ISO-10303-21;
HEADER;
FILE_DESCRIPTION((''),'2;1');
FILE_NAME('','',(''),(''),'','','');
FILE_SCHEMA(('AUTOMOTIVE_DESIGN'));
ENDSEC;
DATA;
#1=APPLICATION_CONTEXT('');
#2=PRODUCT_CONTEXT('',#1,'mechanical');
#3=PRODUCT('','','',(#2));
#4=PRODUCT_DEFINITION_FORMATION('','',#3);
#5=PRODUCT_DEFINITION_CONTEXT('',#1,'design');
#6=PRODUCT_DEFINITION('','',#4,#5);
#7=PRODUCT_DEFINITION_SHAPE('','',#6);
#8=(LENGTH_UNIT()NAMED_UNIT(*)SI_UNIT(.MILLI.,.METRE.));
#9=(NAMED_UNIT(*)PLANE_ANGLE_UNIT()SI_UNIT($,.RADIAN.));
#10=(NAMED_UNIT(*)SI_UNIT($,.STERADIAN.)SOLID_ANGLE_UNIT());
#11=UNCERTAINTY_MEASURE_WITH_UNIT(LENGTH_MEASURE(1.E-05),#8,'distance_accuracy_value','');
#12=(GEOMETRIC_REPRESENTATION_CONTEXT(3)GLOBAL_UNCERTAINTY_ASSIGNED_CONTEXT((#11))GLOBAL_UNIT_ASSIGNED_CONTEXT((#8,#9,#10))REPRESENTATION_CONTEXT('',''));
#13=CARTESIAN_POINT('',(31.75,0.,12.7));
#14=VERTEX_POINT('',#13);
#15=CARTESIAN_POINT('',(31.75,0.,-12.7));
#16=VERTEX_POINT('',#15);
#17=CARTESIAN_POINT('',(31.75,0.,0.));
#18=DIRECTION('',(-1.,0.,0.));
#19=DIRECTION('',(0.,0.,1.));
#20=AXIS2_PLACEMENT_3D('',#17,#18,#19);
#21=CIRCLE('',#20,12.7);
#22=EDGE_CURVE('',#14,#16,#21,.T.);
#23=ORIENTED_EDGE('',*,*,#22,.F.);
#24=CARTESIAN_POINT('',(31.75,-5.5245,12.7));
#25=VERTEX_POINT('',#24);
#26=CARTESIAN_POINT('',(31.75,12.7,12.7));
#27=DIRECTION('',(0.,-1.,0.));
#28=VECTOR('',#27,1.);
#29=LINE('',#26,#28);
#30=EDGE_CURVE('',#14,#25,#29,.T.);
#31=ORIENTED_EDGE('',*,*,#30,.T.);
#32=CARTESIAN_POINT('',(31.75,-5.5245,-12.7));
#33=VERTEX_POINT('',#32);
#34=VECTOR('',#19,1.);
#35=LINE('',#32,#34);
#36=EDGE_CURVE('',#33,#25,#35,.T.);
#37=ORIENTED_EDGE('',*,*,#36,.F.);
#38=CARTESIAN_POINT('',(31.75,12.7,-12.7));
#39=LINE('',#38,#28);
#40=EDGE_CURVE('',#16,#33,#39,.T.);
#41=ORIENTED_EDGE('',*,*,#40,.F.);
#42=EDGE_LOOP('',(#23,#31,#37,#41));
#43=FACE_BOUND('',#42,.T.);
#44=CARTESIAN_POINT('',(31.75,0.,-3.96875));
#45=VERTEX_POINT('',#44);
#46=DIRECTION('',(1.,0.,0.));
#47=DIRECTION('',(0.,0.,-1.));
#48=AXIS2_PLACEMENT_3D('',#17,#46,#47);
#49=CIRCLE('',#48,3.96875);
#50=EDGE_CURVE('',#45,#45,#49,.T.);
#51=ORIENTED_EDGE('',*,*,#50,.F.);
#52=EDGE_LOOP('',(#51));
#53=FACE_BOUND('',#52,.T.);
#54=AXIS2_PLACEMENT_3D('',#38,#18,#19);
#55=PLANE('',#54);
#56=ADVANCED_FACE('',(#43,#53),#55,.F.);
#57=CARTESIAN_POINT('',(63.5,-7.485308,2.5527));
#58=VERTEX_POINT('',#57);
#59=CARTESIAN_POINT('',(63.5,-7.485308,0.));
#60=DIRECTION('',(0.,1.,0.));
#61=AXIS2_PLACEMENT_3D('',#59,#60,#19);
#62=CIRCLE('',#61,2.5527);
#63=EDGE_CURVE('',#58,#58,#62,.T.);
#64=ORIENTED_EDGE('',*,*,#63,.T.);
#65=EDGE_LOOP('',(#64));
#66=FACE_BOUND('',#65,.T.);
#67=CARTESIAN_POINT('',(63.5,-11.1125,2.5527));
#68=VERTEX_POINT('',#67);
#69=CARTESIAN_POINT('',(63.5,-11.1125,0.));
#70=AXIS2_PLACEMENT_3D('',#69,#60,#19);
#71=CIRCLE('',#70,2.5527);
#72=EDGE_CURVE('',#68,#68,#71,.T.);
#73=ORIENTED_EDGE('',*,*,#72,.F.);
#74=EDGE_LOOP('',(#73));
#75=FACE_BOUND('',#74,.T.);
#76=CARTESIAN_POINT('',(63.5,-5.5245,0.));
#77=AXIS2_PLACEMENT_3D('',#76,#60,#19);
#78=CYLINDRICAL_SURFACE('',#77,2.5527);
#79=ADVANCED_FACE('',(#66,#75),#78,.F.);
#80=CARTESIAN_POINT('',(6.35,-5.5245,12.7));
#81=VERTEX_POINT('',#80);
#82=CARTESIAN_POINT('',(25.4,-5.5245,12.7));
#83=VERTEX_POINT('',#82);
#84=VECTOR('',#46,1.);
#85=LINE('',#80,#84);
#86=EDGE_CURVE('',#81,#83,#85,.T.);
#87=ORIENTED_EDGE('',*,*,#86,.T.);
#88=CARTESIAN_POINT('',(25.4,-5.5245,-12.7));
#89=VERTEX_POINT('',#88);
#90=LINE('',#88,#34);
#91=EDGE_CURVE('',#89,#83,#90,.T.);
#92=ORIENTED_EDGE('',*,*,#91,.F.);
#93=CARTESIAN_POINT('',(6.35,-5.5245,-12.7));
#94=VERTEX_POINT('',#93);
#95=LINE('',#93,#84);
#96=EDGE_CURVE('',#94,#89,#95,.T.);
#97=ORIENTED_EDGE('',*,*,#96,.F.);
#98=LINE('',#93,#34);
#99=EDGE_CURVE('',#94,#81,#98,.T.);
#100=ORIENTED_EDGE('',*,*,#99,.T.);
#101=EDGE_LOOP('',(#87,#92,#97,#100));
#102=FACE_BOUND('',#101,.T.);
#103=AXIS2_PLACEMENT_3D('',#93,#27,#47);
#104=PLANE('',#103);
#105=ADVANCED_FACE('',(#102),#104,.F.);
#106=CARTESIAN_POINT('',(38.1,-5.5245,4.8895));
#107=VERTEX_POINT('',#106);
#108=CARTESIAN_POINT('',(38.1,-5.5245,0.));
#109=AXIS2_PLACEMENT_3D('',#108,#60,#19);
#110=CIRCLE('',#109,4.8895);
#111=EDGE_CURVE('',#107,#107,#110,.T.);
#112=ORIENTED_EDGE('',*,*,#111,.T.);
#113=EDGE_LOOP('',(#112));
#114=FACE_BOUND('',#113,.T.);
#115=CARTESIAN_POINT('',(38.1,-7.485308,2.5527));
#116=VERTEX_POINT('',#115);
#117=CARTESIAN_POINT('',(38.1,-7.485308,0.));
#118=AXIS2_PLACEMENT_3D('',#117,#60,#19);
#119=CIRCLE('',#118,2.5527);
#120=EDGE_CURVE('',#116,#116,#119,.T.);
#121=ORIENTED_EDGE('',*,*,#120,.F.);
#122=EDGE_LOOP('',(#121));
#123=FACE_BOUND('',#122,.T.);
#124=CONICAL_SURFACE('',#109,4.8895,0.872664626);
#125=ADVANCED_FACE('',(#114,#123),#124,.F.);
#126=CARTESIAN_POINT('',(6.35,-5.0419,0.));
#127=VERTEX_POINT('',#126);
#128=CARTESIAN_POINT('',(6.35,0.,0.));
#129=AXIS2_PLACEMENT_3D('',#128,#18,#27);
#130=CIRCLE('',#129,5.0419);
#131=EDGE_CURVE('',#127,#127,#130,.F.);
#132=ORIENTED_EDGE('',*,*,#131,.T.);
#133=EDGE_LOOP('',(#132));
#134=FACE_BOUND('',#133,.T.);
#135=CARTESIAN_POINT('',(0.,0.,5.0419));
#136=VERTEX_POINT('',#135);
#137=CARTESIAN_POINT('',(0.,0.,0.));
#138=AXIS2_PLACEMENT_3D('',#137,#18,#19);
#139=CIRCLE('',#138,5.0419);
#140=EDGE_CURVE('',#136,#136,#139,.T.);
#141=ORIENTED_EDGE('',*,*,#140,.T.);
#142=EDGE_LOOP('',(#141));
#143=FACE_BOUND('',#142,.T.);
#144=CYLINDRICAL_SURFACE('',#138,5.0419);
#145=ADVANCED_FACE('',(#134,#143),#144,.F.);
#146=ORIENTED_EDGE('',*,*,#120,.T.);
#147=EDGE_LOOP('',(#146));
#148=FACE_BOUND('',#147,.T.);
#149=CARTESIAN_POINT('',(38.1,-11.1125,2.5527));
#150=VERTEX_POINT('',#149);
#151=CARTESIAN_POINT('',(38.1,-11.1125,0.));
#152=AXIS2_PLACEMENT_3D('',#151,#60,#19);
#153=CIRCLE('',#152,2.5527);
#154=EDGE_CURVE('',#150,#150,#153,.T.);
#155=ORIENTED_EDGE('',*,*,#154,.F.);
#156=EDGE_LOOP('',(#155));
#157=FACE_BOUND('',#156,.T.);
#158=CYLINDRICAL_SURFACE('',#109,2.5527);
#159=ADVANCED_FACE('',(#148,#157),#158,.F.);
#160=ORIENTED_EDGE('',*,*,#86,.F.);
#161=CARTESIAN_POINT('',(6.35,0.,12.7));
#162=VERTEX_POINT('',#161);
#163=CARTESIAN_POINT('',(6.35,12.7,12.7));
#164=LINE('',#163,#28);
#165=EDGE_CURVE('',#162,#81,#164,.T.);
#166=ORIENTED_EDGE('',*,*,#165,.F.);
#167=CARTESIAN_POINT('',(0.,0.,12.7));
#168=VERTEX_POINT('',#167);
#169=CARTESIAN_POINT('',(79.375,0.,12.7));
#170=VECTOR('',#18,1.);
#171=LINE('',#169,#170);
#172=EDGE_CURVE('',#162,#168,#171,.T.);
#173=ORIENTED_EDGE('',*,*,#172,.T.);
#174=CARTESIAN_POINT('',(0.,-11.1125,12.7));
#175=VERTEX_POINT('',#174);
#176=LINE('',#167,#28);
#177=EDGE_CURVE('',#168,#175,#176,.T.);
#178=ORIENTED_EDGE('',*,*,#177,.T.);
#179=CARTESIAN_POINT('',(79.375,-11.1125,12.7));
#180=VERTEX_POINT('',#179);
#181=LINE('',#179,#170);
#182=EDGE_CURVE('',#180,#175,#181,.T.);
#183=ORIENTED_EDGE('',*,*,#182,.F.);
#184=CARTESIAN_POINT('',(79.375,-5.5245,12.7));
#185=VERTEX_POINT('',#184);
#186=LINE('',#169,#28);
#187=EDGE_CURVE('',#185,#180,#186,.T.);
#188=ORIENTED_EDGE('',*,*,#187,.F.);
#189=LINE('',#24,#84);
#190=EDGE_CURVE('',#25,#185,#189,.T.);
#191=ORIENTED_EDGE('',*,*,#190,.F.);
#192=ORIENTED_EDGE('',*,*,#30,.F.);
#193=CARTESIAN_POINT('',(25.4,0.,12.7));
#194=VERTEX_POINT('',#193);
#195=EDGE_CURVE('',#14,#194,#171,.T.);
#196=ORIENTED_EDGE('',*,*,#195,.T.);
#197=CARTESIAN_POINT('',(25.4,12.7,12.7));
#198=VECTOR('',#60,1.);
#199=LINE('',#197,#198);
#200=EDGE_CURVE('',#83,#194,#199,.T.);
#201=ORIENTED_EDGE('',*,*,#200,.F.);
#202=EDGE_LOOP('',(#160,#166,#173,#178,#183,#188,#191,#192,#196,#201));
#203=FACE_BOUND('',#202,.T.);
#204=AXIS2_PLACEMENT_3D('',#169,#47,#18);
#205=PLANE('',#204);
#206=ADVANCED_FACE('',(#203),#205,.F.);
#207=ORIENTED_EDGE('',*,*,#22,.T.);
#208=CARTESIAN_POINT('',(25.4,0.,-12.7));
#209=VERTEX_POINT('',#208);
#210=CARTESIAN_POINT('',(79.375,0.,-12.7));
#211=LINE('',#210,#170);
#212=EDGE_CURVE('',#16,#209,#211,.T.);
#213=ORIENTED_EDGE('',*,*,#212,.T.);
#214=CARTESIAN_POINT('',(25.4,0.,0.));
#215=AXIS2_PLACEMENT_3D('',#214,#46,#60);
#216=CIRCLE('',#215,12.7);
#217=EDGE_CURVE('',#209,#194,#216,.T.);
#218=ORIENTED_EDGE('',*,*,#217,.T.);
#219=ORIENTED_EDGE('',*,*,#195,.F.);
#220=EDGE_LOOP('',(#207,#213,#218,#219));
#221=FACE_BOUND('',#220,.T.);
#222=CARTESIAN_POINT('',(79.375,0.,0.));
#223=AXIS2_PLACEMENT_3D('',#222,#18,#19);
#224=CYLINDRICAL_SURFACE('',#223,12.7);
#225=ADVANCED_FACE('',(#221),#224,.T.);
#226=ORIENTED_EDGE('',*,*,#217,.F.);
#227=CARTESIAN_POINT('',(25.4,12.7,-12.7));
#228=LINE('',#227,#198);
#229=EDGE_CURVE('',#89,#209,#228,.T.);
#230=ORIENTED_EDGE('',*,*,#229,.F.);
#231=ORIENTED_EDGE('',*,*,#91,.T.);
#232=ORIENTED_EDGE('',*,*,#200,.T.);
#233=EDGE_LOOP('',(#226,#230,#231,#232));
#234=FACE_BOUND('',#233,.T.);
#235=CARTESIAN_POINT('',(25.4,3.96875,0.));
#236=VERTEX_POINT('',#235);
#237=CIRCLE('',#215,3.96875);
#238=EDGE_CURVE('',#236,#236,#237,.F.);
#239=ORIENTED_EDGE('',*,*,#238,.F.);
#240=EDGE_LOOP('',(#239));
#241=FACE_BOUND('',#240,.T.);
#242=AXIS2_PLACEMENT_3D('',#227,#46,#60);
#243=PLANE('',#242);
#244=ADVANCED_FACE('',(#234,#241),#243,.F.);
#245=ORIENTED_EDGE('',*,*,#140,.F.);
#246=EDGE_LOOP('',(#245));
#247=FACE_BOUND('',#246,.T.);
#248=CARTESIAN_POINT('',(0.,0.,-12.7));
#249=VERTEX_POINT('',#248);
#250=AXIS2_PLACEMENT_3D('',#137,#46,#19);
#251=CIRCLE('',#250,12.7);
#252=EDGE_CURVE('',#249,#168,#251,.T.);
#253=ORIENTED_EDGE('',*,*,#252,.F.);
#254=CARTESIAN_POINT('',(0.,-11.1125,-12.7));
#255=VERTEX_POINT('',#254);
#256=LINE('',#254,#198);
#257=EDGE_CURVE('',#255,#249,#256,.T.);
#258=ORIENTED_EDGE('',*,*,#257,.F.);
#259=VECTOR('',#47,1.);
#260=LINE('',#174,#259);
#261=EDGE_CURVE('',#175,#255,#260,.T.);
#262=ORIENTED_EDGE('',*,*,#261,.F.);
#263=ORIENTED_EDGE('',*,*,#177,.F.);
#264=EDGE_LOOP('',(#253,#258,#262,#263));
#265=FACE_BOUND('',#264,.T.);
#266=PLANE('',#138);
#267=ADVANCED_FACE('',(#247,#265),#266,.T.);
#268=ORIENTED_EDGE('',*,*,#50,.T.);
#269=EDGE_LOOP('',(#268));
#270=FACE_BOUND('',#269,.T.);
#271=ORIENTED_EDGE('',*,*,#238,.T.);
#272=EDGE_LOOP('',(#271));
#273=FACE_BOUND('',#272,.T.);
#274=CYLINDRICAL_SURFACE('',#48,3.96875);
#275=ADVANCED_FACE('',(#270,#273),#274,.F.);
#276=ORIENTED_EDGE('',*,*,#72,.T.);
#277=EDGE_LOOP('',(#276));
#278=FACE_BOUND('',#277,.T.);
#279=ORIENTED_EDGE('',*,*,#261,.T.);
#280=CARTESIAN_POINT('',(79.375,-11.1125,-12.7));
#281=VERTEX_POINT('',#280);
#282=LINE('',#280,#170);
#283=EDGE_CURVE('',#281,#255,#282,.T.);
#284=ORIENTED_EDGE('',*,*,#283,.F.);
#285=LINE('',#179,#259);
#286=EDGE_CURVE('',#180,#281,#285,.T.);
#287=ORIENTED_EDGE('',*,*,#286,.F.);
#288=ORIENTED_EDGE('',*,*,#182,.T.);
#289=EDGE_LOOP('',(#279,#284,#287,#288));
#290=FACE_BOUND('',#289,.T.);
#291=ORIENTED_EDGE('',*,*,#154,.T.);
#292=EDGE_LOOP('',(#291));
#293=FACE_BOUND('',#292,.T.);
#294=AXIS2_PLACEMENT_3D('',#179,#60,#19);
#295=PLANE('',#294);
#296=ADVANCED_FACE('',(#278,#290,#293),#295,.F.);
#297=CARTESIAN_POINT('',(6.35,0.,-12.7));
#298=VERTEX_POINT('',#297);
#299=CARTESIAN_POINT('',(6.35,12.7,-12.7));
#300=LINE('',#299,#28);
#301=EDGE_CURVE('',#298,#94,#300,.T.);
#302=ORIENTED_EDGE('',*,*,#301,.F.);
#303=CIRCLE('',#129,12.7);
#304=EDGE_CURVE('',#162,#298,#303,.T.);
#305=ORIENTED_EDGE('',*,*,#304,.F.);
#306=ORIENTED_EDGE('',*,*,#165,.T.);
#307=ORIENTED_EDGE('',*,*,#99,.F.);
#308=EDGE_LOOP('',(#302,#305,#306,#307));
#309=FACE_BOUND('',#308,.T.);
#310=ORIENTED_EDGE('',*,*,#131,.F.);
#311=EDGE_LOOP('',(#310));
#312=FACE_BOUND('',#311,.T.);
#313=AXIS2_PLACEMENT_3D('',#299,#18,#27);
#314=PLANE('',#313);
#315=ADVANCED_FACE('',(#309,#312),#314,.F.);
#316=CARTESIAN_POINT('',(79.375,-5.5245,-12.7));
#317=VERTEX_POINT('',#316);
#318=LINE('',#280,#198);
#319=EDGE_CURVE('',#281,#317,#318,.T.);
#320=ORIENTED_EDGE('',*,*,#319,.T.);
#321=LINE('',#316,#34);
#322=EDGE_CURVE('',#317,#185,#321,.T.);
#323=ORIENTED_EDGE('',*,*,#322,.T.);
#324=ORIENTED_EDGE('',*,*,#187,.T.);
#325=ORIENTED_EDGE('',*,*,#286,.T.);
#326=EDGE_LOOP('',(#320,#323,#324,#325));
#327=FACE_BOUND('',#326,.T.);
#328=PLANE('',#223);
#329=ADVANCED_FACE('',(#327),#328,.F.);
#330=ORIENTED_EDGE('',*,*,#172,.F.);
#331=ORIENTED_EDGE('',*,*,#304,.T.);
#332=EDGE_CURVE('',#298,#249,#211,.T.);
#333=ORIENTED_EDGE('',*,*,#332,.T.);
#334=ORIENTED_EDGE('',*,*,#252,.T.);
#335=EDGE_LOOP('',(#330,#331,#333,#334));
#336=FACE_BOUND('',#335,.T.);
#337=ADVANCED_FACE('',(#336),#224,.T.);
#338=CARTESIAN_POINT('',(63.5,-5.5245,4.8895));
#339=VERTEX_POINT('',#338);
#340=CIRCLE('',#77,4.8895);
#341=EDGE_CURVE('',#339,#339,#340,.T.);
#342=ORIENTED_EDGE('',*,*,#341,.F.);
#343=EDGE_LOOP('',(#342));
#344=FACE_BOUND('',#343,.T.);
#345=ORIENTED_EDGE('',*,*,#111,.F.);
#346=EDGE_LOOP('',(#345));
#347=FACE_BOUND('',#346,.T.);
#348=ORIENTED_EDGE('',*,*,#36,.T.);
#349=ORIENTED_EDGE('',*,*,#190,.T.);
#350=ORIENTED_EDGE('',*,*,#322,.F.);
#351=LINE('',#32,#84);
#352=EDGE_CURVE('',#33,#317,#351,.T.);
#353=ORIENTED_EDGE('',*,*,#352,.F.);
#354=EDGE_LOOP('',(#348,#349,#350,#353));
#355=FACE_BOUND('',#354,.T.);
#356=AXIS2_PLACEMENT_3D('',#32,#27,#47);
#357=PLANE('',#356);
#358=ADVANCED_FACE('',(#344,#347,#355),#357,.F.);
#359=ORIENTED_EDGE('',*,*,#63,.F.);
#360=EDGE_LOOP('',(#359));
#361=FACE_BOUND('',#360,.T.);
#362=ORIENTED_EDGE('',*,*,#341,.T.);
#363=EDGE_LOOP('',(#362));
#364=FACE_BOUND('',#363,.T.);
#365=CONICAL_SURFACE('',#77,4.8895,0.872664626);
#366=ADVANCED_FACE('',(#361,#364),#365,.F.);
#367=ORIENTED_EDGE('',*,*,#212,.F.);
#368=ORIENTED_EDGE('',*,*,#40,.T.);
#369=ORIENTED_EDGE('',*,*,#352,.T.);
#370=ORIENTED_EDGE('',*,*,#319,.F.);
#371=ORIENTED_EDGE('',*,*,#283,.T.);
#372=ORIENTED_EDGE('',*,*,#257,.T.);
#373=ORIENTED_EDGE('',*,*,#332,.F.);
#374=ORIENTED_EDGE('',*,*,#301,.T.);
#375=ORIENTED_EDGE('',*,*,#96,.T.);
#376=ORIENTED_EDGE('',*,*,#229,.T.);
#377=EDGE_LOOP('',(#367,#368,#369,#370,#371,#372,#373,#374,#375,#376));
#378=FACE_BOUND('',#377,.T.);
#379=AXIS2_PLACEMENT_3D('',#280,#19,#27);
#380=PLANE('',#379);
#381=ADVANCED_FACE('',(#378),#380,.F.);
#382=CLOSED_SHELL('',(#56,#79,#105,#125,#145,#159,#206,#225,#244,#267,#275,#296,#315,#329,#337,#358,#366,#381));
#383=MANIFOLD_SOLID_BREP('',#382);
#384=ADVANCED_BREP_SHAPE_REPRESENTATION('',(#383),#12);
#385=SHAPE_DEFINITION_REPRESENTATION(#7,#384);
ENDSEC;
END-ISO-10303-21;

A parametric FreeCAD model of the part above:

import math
import FreeCAD as App
import Part
import Sketcher

V = App.Vector
Q = App.Units.Quantity

doc = App.newDocument("Part")
body = doc.addObject("PartDesign::Body", "Body")

sketch1 = body.newObject("Sketcher::SketchObject", "Sketch")
sketch1.AttachmentSupport = (doc.getObject("YZ_Plane"), [""])
sketch1.MapMode = "FlatFace"
sketch1.addGeometry(Part.LineSegment(V(0, 12.7, 0), V(-11.1, 12.7, 0)), False)
sketch1.addGeometry(Part.LineSegment(V(-11.1, 12.7, 0), V(-11.1, -12.7, 0)), False)
sketch1.addGeometry(Part.LineSegment(V(-11.1, -12.7, 0), V(0, -12.7, 0)), False)
sketch1.addGeometry(Part.ArcOfCircle(Part.Circle(V(0, 0, 0), V(0, 0, 1), 12.7), math.radians(-90), math.radians(90)), False)
sketch1.addGeometry(Part.Circle(V(0, 0, 0), V(0, 0, 1), 1.6), False)
sketch1.addConstraint(Sketcher.Constraint("Coincident", 0, 2, 1, 1))
sketch1.addConstraint(Sketcher.Constraint("Coincident", 1, 2, 2, 1))
sketch1.addConstraint(Sketcher.Constraint("Tangent", 2, 2, 3, 1))
sketch1.addConstraint(Sketcher.Constraint("Tangent", 3, 2, 0, 1))
sketch1.addConstraint(Sketcher.Constraint("Horizontal", 0))
sketch1.addConstraint(Sketcher.Constraint("Vertical", 1))
sketch1.addConstraint(Sketcher.Constraint("Horizontal", 2))
sketch1.addConstraint(Sketcher.Constraint("Coincident", 3, 3, -1, 1))
sketch1.addConstraint(Sketcher.Constraint("Coincident", 4, 3, -1, 1))
sketch1.addConstraint(Sketcher.Constraint("Radius", 3, Q("0.5 in")))
sketch1.addConstraint(Sketcher.Constraint("Diameter", 4, Q("0.125 in")))
sketch1.addConstraint(Sketcher.Constraint("DistanceX", 0, 2, 0, 1, Q("0.4375 in")))
pad1 = body.newObject("PartDesign::Pad", "Pad")
pad1.Profile = sketch1
pad1.Length = Q("3.125 in")

sketch2 = body.newObject("Sketcher::SketchObject", "Sketch001")
sketch2.AttachmentSupport = (doc.getObject("XY_Plane"), [""])
sketch2.MapMode = "FlatFace"
sketch2.AttachmentOffset = App.Placement(V(0, 0, 0.5 * 25.4), App.Rotation())
sketch2.addGeometry(Part.LineSegment(V(6, 13, 0), V(6, -6, 0)), False)
sketch2.addGeometry(Part.LineSegment(V(6, -6, 0), V(25, -6, 0)), False)
sketch2.addGeometry(Part.LineSegment(V(25, -6, 0), V(25, 13, 0)), False)
sketch2.addGeometry(Part.LineSegment(V(25, 13, 0), V(6, 13, 0)), False)
sketch2.addGeometry(Part.LineSegment(V(32, 13, 0), V(32, -6, 0)), False)
sketch2.addGeometry(Part.LineSegment(V(32, -6, 0), V(79, -6, 0)), False)
sketch2.addGeometry(Part.LineSegment(V(79, -6, 0), V(79, 13, 0)), False)
sketch2.addGeometry(Part.LineSegment(V(79, 13, 0), V(32, 13, 0)), False)
sketch2.addConstraint(Sketcher.Constraint("Coincident", 0, 2, 1, 1))
sketch2.addConstraint(Sketcher.Constraint("Coincident", 1, 2, 2, 1))
sketch2.addConstraint(Sketcher.Constraint("Coincident", 2, 2, 3, 1))
sketch2.addConstraint(Sketcher.Constraint("Coincident", 3, 2, 0, 1))
sketch2.addConstraint(Sketcher.Constraint("Coincident", 4, 2, 5, 1))
sketch2.addConstraint(Sketcher.Constraint("Coincident", 5, 2, 6, 1))
sketch2.addConstraint(Sketcher.Constraint("Coincident", 6, 2, 7, 1))
sketch2.addConstraint(Sketcher.Constraint("Coincident", 7, 2, 4, 1))
sketch2.addConstraint(Sketcher.Constraint("Vertical", 0))
sketch2.addConstraint(Sketcher.Constraint("Horizontal", 1))
sketch2.addConstraint(Sketcher.Constraint("Vertical", 2))
sketch2.addConstraint(Sketcher.Constraint("Horizontal", 3))
sketch2.addConstraint(Sketcher.Constraint("Vertical", 4))
sketch2.addConstraint(Sketcher.Constraint("Horizontal", 5))
sketch2.addConstraint(Sketcher.Constraint("Vertical", 6))
sketch2.addConstraint(Sketcher.Constraint("Horizontal", 7))
sketch2.addConstraint(Sketcher.Constraint("Horizontal", 1, 2, 4, 2))
sketch2.addConstraint(Sketcher.Constraint("Horizontal", 3, 2, 6, 2))
sketch2.addConstraint(Sketcher.Constraint("DistanceX", -1, 1, 1, 2, Q("1 in")))
sketch2.addConstraint(Sketcher.Constraint("DistanceX", 0, 2, 4, 2, Q("1 in")))
sketch2.addConstraint(Sketcher.Constraint("DistanceX", 1, 1, 1, 2, Q("0.75 in")))
sketch2.addConstraint(Sketcher.Constraint("DistanceY", -1, 1, 2, 2, Q("0.5 in")))
sketch2.addConstraint(Sketcher.Constraint("DistanceX", 5, 1, 5, 2, Q("1.875 in")))
sketch2.addConstraint(Sketcher.Constraint("DistanceY", 0, 2, 0, 1, Q("0.7175 in")))
pocket1 = body.newObject("PartDesign::Pocket", "Pocket")
pocket1.Profile = sketch2
pocket1.Type = "ThroughAll"

sketch3 = body.newObject("Sketcher::SketchObject", "Sketch002")
sketch3.AttachmentSupport = (doc.getObject("XZ_Plane"), [""])
sketch3.MapMode = "FlatFace"
sketch3.AttachmentOffset = App.Placement(V(0, 0, 0.2175 * 25.4), App.Rotation())
sketch3.addGeometry(Part.Circle(V(38.1, 0, 0), V(0, 0, 1), 2.6), False)
sketch3.addGeometry(Part.Circle(V(63.5, 0, 0), V(0, 0, 1), 2.6), False)
sketch3.addConstraint(Sketcher.Constraint("Equal", 0, 1))
sketch3.addConstraint(Sketcher.Constraint("PointOnObject", 0, 3, -1))
sketch3.addConstraint(Sketcher.Constraint("PointOnObject", 1, 3, -1))
sketch3.addConstraint(Sketcher.Constraint("Diameter", 0, Q("0.201 in")))
sketch3.addConstraint(Sketcher.Constraint("DistanceX", 0, 3, 1, 3, Q("1 in")))
sketch3.addConstraint(Sketcher.Constraint("DistanceX", -1, 1, 0, 3, Q("1.5 in")))
doc.recompute()
hole = body.newObject("PartDesign::Hole", "Hole")
hole.Profile = sketch3
hole.ThreadType = "None"
hole.Diameter = Q("0.201 in")
hole.DepthType = "ThroughAll"
hole.HoleCutType = "Countersink"
hole.HoleCutDiameter = Q("0.385 in")
hole.HoleCutCountersinkAngle = 100
hole.Reversed = True

sketch4 = body.newObject("Sketcher::SketchObject", "Sketch003")
sketch4.AttachmentSupport = (doc.getObject("YZ_Plane"), [""])
sketch4.MapMode = "FlatFace"
sketch4.AttachmentOffset = App.Placement(V(0, 0, 1.25 * 25.4), App.Rotation())
sketch4.addGeometry(Part.Circle(V(0, 0, 0), V(0, 0, 1), 4), False)
sketch4.addConstraint(Sketcher.Constraint("Coincident", 0, 3, -1, 1))
sketch4.addConstraint(Sketcher.Constraint("Diameter", 0, Q("0.3125 in")))
pocket2 = body.newObject("PartDesign::Pocket", "Pocket001")
pocket2.Profile = sketch4
pocket2.Length = Q("0.25 in")

sketch5 = body.newObject("Sketcher::SketchObject", "Sketch004")
sketch5.AttachmentSupport = (doc.getObject("YZ_Plane"), [""])
sketch5.MapMode = "FlatFace"
sketch5.addGeometry(Part.Circle(V(0, 0, 0), V(0, 0, 1), 5), False)
sketch5.addConstraint(Sketcher.Constraint("Coincident", 0, 3, -1, 1))
sketch5.addConstraint(Sketcher.Constraint("Diameter", 0, Q("0.397 in")))
pocket3 = body.newObject("PartDesign::Pocket", "Pocket002")
pocket3.Profile = sketch5
pocket3.Length = Q("0.25 in")
pocket3.Reversed = True

doc.recompute()
